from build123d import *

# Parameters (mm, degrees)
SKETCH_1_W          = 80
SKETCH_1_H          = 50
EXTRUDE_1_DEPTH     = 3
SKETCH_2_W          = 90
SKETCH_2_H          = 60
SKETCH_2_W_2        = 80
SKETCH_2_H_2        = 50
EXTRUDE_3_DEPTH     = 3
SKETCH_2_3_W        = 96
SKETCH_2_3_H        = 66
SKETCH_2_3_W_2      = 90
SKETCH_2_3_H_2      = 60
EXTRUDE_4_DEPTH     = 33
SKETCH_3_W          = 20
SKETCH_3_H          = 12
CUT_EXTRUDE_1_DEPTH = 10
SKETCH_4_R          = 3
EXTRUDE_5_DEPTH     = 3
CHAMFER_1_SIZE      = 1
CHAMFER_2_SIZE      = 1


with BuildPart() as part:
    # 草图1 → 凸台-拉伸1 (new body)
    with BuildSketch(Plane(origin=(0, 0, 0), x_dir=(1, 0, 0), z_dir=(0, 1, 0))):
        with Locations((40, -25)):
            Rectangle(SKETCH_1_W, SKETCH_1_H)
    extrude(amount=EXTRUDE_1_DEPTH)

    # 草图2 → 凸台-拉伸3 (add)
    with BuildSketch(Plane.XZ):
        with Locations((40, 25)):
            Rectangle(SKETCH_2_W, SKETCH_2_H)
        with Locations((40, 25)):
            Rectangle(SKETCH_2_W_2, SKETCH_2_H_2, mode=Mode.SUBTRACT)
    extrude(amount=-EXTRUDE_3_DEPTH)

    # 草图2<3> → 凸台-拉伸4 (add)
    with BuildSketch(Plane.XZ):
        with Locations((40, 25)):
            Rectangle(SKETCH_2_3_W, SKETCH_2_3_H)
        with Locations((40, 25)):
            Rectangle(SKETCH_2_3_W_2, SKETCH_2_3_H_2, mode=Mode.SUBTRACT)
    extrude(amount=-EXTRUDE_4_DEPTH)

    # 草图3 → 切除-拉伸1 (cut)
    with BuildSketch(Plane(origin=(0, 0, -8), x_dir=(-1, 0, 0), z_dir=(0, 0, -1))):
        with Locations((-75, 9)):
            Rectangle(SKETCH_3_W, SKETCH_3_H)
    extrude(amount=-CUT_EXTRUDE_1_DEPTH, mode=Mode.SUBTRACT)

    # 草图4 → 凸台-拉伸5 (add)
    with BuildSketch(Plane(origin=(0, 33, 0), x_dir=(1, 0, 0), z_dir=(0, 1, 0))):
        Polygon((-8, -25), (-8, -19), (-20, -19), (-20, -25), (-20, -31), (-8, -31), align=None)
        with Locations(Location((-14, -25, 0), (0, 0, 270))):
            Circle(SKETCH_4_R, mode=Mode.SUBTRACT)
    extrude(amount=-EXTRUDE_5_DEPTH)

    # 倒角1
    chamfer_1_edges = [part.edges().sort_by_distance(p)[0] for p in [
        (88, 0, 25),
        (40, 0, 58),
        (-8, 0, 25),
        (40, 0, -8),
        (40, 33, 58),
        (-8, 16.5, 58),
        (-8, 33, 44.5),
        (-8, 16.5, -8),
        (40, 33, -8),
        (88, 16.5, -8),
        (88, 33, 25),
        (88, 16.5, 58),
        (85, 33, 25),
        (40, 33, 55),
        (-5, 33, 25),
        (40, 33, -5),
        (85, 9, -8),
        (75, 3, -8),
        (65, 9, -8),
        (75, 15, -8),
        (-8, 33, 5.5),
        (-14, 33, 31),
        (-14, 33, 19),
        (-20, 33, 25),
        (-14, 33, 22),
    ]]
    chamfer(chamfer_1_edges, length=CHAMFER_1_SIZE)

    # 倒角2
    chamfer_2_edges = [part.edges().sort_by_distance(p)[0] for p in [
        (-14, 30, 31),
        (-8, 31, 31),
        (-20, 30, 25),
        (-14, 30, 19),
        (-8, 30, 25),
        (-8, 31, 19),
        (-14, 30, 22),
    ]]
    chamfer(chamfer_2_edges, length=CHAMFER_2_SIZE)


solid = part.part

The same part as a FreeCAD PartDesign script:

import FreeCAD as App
import Part
import Sketcher

V = App.Vector
Q = App.Units.Quantity


def edges_at(feature, points):
    """Names of the edges that pass closest to the given points."""
    edges = feature.Shape.Edges
    near = lambda p: min(range(len(edges)), key=lambda i: edges[i].distToShape(Part.Vertex(*p))[0])
    return sorted({f"Edge{near(p) + 1}" for p in points})

doc = App.newDocument("Part")
body = doc.addObject("PartDesign::Body", "Body")

# Sketch on XZ plane
sketch1 = body.newObject("Sketcher::SketchObject", "Sketch")
sketch1.AttachmentSupport = (doc.getObject("XZ_Plane"), [""])
sketch1.MapMode = "FlatFace"
sketch1.addGeometry([
    Part.LineSegment(V(0, 0, 0), V(0, 50, 0)),
    Part.LineSegment(V(0, 50, 0), V(80, 50, 0)),
    Part.LineSegment(V(80, 50, 0), V(80, 0, 0)),
    Part.LineSegment(V(80, 0, 0), V(0, 0, 0)),
], False)
sketch1.addConstraint([
    Sketcher.Constraint("Coincident", 0, 2, 1, 1),
    Sketcher.Constraint("Coincident", 1, 2, 2, 1),
    Sketcher.Constraint("Coincident", 2, 2, 3, 1),
    Sketcher.Constraint("Coincident", 3, 2, 0, 1),
    Sketcher.Constraint("Vertical", 0),
    Sketcher.Constraint("Horizontal", 1),
    Sketcher.Constraint("Vertical", 2),
    Sketcher.Constraint("Horizontal", 3),
    Sketcher.Constraint("Coincident", 3, 2, -1, 1),
    Sketcher.Constraint("DistanceX", 1, 1, 1, 2, Q("80 mm")),
    Sketcher.Constraint("DistanceY", 0, 1, 0, 2, Q("50 mm")),
])
pad1 = body.newObject("PartDesign::Pad", "Pad")
pad1.Profile = sketch1
pad1.Length = 3
pad1.Reversed = True

# Sketch on XZ plane
sketch2 = body.newObject("Sketcher::SketchObject", "Sketch001")
sketch2.AttachmentSupport = (doc.getObject("XZ_Plane"), [""])
sketch2.MapMode = "FlatFace"
sketch2.addGeometry([
    Part.LineSegment(V(-5, 55, 0), V(-5, -5, 0)),  # 0
    Part.LineSegment(V(-5, -5, 0), V(85, -5, 0)),  # 1
    Part.LineSegment(V(85, -5, 0), V(85, 55, 0)),  # 2
    Part.LineSegment(V(85, 55, 0), V(-5, 55, 0)),  # 3
    Part.LineSegment(V(80, 0, 0), V(0, 0, 0)),  # 4
    Part.LineSegment(V(0, 0, 0), V(0, 50, 0)),  # 5
    Part.LineSegment(V(0, 50, 0), V(80, 50, 0)),  # 6
    Part.LineSegment(V(80, 50, 0), V(80, 0, 0)),  # 7
], False)
sketch2.addConstraint([
    Sketcher.Constraint("Coincident", 0, 2, 1, 1),
    Sketcher.Constraint("Coincident", 1, 2, 2, 1),
    Sketcher.Constraint("Coincident", 2, 2, 3, 1),
    Sketcher.Constraint("Coincident", 3, 2, 0, 1),
    Sketcher.Constraint("Coincident", 4, 2, 5, 1),
    Sketcher.Constraint("Coincident", 5, 2, 6, 1),
    Sketcher.Constraint("Coincident", 6, 2, 7, 1),
    Sketcher.Constraint("Coincident", 7, 2, 4, 1),
    Sketcher.Constraint("Vertical", 0),
    Sketcher.Constraint("Horizontal", 1),
    Sketcher.Constraint("Vertical", 2),
    Sketcher.Constraint("Horizontal", 3),
    Sketcher.Constraint("Horizontal", 4),
    Sketcher.Constraint("Vertical", 5),
    Sketcher.Constraint("Horizontal", 6),
    Sketcher.Constraint("Vertical", 7),
    Sketcher.Constraint("Coincident", 4, 2, -1, 1),
    Sketcher.Constraint("DistanceX", 1, 1, 1, 2, Q("90 mm")),
    Sketcher.Constraint("DistanceX", 4, 2, 4, 1, Q("80 mm")),
    Sketcher.Constraint("DistanceY", 0, 2, 0, 1, Q("60 mm")),
    Sketcher.Constraint("DistanceY", 5, 1, 5, 2, Q("50 mm")),
    Sketcher.Constraint("DistanceX", 0, 2, -1, 1, Q("5 mm")),
    Sketcher.Constraint("DistanceY", 0, 2, -1, 1, Q("5 mm")),
])
pad2 = body.newObject("PartDesign::Pad", "Pad001")
pad2.Profile = sketch2
pad2.Length = 3
pad2.Reversed = True

# Sketch on XZ plane
sketch3 = body.newObject("Sketcher::SketchObject", "Sketch002")
sketch3.AttachmentSupport = (doc.getObject("XZ_Plane"), [""])
sketch3.MapMode = "FlatFace"
sketch3.addGeometry([
    Part.LineSegment(V(-8, 58, 0), V(-8, -8, 0)),  # 0
    Part.LineSegment(V(-8, -8, 0), V(88, -8, 0)),  # 1
    Part.LineSegment(V(88, -8, 0), V(88, 58, 0)),  # 2
    Part.LineSegment(V(88, 58, 0), V(-8, 58, 0)),  # 3
    Part.LineSegment(V(85, -5, 0), V(-5, -5, 0)),  # 4
    Part.LineSegment(V(-5, -5, 0), V(-5, 55, 0)),  # 5
    Part.LineSegment(V(-5, 55, 0), V(85, 55, 0)),  # 6
    Part.LineSegment(V(85, 55, 0), V(85, -5, 0)),  # 7
], False)
sketch3.addConstraint([
    Sketcher.Constraint("Coincident", 0, 2, 1, 1),
    Sketcher.Constraint("Coincident", 1, 2, 2, 1),
    Sketcher.Constraint("Coincident", 2, 2, 3, 1),
    Sketcher.Constraint("Coincident", 3, 2, 0, 1),
    Sketcher.Constraint("Coincident", 4, 2, 5, 1),
    Sketcher.Constraint("Coincident", 5, 2, 6, 1),
    Sketcher.Constraint("Coincident", 6, 2, 7, 1),
    Sketcher.Constraint("Coincident", 7, 2, 4, 1),
    Sketcher.Constraint("Vertical", 0),
    Sketcher.Constraint("Horizontal", 1),
    Sketcher.Constraint("Vertical", 2),
    Sketcher.Constraint("Horizontal", 3),
    Sketcher.Constraint("Horizontal", 4),
    Sketcher.Constraint("Vertical", 5),
    Sketcher.Constraint("Horizontal", 6),
    Sketcher.Constraint("Vertical", 7),
    Sketcher.Constraint("DistanceX", 1, 1, 1, 2, Q("96 mm")),
    Sketcher.Constraint("DistanceX", 4, 2, 4, 1, Q("90 mm")),
    Sketcher.Constraint("DistanceY", 0, 2, 0, 1, Q("66 mm")),
    Sketcher.Constraint("DistanceY", 5, 1, 5, 2, Q("60 mm")),
    Sketcher.Constraint("DistanceX", 0, 2, -1, 1, Q("8 mm")),
    Sketcher.Constraint("DistanceY", 0, 2, -1, 1, Q("8 mm")),
    Sketcher.Constraint("DistanceX", 4, 2, -1, 1, Q("5 mm")),
    Sketcher.Constraint("DistanceY", 4, 2, -1, 1, Q("5 mm")),
])
pad3 = body.newObject("PartDesign::Pad", "Pad002")
pad3.Profile = sketch3
pad3.Length = 33
pad3.Reversed = True

# Sketch on XY plane
sketch4 = body.newObject("Sketcher::SketchObject", "Sketch003")
sketch4.AttachmentSupport = (doc.getObject("XY_Plane"), [""])
sketch4.MapMode = "FlatFace"
sketch4.AttachmentOffset = App.Placement(V(0, 0, -8), App.Rotation())
sketch4.addGeometry([
    Part.LineSegment(V(85, 15, 0), V(85, 3, 0)),
    Part.LineSegment(V(85, 3, 0), V(65, 3, 0)),
    Part.LineSegment(V(65, 3, 0), V(65, 15, 0)),
    Part.LineSegment(V(65, 15, 0), V(85, 15, 0)),
], False)
sketch4.addConstraint([
    Sketcher.Constraint("Coincident", 0, 2, 1, 1),
    Sketcher.Constraint("Coincident", 1, 2, 2, 1),
    Sketcher.Constraint("Coincident", 2, 2, 3, 1),
    Sketcher.Constraint("Coincident", 3, 2, 0, 1),
    Sketcher.Constraint("Vertical", 0),
    Sketcher.Constraint("Horizontal", 1),
    Sketcher.Constraint("Vertical", 2),
    Sketcher.Constraint("Horizontal", 3),
    Sketcher.Constraint("DistanceX", 1, 2, 1, 1, Q("20 mm")),
    Sketcher.Constraint("DistanceY", 0, 2, 0, 1, Q("12 mm")),
    Sketcher.Constraint("DistanceX", -1, 1, 0, 2, Q("85 mm")),
    Sketcher.Constraint("DistanceY", -1, 1, 0, 2, Q("3 mm")),
])
pocket1 = body.newObject("PartDesign::Pocket", "Pocket")
pocket1.Profile = sketch4
pocket1.Length = 10
pocket1.Reversed = True

# Sketch on XZ plane
sketch5 = body.newObject("Sketcher::SketchObject", "Sketch004")
sketch5.AttachmentSupport = (doc.getObject("XZ_Plane"), [""])
sketch5.MapMode = "FlatFace"
sketch5.AttachmentOffset = App.Placement(V(0, 0, -33), App.Rotation())
sketch5.addGeometry([
    Part.LineSegment(V(-8, 19, 0), V(-20, 19, 0)),  # 0
    Part.LineSegment(V(-20, 19, 0), V(-20, 31, 0)),  # 1
    Part.LineSegment(V(-20, 31, 0), V(-8, 31, 0)),  # 2
    Part.LineSegment(V(-8, 31, 0), V(-8, 19, 0)),  # 3
    Part.Circle(V(-14, 25, 0), V(0, 0, 1), 3),  # 4
], False)
sketch5.addConstraint([
    Sketcher.Constraint("Coincident", 0, 2, 1, 1),
    Sketcher.Constraint("Coincident", 1, 2, 2, 1),
    Sketcher.Constraint("Coincident", 2, 2, 3, 1),
    Sketcher.Constraint("Coincident", 3, 2, 0, 1),
    Sketcher.Constraint("Horizontal", 0),
    Sketcher.Constraint("Vertical", 1),
    Sketcher.Constraint("Horizontal", 2),
    Sketcher.Constraint("Vertical", 3),
    Sketcher.Constraint("Equal", 2, 1),
    Sketcher.Constraint("Diameter", 4, Q("6 mm")),
    Sketcher.Constraint("DistanceX", 0, 2, 0, 1, Q("12 mm")),
    Sketcher.Constraint("DistanceX", 4, 3, -1, 1, Q("14 mm")),
    Sketcher.Constraint("DistanceY", -1, 1, 4, 3, Q("25 mm")),
    Sketcher.Constraint("DistanceX", 0, 2, -1, 1, Q("20 mm")),
    Sketcher.Constraint("DistanceY", -1, 1, 0, 2, Q("19 mm")),
])
pad4 = body.newObject("PartDesign::Pad", "Pad003")
pad4.Profile = sketch5
pad4.Length = 3
doc.recompute()

chamfer = body.newObject("PartDesign::Chamfer", "Chamfer")
chamfer.Base = (pad4, edges_at(pad4, [
    (88, 0, 25),
    (40, 0, 58),
    (-8, 0, 25),
    (40, 0, -8),
    (40, 33, 58),
    (-8, 16.5, 58),
    (-8, 33, 44.5),
    (-8, 16.5, -8),
    (40, 33, -8),
    (88, 16.5, -8),
    (88, 33, 25),
    (88, 16.5, 58),
    (85, 33, 25),
    (40, 33, 55),
    (-5, 33, 25),
    (40, 33, -5),
    (85, 9, -8),
    (75, 3, -8),
    (65, 9, -8),
    (75, 15, -8),
    (-8, 33, 5.5),
    (-14, 33, 31),
    (-14, 33, 19),
    (-20, 33, 25),
    (-14, 33, 22),
]))
chamfer.Size = 1
doc.recompute()

chamfer2 = body.newObject("PartDesign::Chamfer", "Chamfer001")
chamfer2.Base = (chamfer, edges_at(chamfer, [
    (-14, 30, 31),
    (-8, 31, 31),
    (-20, 30, 25),
    (-14, 30, 19),
    (-8, 30, 25),
    (-8, 31, 19),
    (-14, 30, 22),
]))
chamfer2.Size = 1

doc.recompute()
